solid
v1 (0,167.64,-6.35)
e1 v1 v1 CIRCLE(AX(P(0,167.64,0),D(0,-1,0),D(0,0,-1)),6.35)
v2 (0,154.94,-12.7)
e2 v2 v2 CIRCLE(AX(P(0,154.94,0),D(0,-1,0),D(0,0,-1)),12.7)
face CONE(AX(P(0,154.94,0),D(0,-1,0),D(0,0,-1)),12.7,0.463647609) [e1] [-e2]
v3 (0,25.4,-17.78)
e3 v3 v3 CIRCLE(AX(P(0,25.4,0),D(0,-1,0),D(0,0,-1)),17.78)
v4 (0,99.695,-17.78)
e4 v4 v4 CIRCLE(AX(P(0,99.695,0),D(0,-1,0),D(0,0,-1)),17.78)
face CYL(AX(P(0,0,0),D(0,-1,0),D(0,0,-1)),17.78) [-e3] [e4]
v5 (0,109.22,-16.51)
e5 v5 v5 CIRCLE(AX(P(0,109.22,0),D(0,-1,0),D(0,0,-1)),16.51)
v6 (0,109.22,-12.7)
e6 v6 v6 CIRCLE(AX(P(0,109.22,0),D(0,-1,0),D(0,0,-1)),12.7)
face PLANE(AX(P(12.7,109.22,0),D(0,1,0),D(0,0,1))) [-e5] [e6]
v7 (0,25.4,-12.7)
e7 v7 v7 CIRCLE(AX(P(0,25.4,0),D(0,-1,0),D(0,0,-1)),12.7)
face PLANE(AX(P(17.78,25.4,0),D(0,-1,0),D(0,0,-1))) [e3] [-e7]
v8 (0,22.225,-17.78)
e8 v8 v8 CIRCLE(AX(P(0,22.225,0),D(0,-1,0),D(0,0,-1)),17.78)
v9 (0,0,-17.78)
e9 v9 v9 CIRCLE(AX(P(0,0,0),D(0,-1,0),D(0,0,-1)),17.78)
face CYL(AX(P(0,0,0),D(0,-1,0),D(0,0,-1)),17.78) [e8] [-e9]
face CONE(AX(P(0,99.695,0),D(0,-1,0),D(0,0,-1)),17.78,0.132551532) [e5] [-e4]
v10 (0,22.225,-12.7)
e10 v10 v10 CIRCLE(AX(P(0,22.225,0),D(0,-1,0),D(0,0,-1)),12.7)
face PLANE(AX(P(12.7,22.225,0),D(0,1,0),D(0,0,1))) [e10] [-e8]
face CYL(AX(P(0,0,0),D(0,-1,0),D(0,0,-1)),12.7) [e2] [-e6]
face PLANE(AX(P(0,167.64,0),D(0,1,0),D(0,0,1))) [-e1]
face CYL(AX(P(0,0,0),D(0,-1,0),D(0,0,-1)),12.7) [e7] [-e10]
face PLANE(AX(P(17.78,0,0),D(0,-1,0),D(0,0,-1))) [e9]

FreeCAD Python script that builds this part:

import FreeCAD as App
import Part
import Sketcher

V = App.Vector
Q = App.Units.Quantity


def add_polygon(sketch, points):
    """Adds a closed chain of lines whose ends are joined by coincident constraints."""
    first, n = sketch.GeometryCount, len(points)
    for a, b in zip(points, points[1:] + points[:1]):
        sketch.addGeometry(Part.LineSegment(App.Vector(*a, 0), App.Vector(*b, 0)), False)
    for i in range(n):
        sketch.addConstraint(Sketcher.Constraint("Coincident", first + i, 2, first + (i + 1) % n, 1))

doc = App.newDocument("Part")
params = doc.addObject("Spreadsheet::Sheet", "Params")
for row, (alias, value) in enumerate([
    ("sketch1_width", "0.7 in"),
    ("sketch1_width2", "0.2 in"),
    ("sketch1_height", "6.6 in"),
    ("sketch1_height2", "1.8 in"),
    ("sketch1_width3", "0.15 in"),
    ("revolution_angle", "360 deg"),
], start=1):
    params.set(f"A{row}", alias)
    params.set(f"B{row}", "=" + value)
    params.setAlias(f"B{row}", alias)

body = doc.addObject("PartDesign::Body", "Body")

sketch1 = body.newObject("Sketcher::SketchObject", "Sketch")
sketch1.AttachmentSupport = (doc.getObject("XY_Plane"), [""])
sketch1.MapMode = "FlatFace"
add_polygon(sketch1, [(0, 167.64), (0, 0), (17.78, 0), (17.78, 22.225), (12.7, 22.225), (12.7, 25.4), (17.78, 25.4), (17.78, 99.695), (16.51, 109.22), (12.7, 109.22), (12.7, 154.94), (6.35, 167.64)])
sketch1.addConstraint([
    Sketcher.Constraint("Vertical", 0),
    Sketcher.Constraint("Horizontal", 1),
    Sketcher.Constraint("Vertical", 2),
    Sketcher.Constraint("Horizontal", 3),
    Sketcher.Constraint("Vertical", 4),
    Sketcher.Constraint("Horizontal", 5),
    Sketcher.Constraint("Vertical", 6),
    Sketcher.Constraint("Horizontal", 8),
    Sketcher.Constraint("Vertical", 9),
    Sketcher.Constraint("Horizontal", 11),
    Sketcher.Constraint("Coincident", 0, 2, -1, 1),
    Sketcher.Constraint("Vertical", 2, 2, 5, 2),
    Sketcher.Constraint("Vertical", 4, 2, 8, 2),
    Sketcher.Constraint("DistanceX", 1, 1, 1, 2, Q("0.7 in")),
    Sketcher.Constraint("DistanceX", 3, 2, 3, 1, Q("0.2 in")),
    Sketcher.Constraint("DistanceY", 0, 2, 0, 1, Q("6.6 in")),
    Sketcher.Constraint("DistanceY", 9, 1, 9, 2, Q("1.8 in")),
    Sketcher.Constraint("DistanceY", -1, 1, 4, 2, Q("1 in")),
    Sketcher.Constraint("DistanceX", 8, 2, 8, 1, Q("0.15 in")),
    Sketcher.Constraint("DistanceX", 11, 2, 11, 1, Q("0.25 in")),
    Sketcher.Constraint("DistanceY", -1, 1, 7, 2, Q("4.3 in")),
    Sketcher.Constraint("DistanceY", 2, 1, 2, 2, Q("0.875 in")),
    Sketcher.Constraint("DistanceY", 6, 1, 6, 2, Q("2.925 in")),
])
sketch1.setExpression("Constraints[25]", "Params.sketch1_width")
sketch1.setExpression("Constraints[26]", "Params.sketch1_width2")
sketch1.setExpression("Constraints[27]", "Params.sketch1_height")
sketch1.setExpression("Constraints[28]", "Params.sketch1_height2")
sketch1.setExpression("Constraints[30]", "Params.sketch1_width3")
revolution = body.newObject("PartDesign::Revolution", "Revolution")
revolution.Profile = sketch1
revolution.ReferenceAxis = (sketch1, ["V_Axis"])
revolution.setExpression("Angle", "Params.revolution_angle")

doc.recompute()
